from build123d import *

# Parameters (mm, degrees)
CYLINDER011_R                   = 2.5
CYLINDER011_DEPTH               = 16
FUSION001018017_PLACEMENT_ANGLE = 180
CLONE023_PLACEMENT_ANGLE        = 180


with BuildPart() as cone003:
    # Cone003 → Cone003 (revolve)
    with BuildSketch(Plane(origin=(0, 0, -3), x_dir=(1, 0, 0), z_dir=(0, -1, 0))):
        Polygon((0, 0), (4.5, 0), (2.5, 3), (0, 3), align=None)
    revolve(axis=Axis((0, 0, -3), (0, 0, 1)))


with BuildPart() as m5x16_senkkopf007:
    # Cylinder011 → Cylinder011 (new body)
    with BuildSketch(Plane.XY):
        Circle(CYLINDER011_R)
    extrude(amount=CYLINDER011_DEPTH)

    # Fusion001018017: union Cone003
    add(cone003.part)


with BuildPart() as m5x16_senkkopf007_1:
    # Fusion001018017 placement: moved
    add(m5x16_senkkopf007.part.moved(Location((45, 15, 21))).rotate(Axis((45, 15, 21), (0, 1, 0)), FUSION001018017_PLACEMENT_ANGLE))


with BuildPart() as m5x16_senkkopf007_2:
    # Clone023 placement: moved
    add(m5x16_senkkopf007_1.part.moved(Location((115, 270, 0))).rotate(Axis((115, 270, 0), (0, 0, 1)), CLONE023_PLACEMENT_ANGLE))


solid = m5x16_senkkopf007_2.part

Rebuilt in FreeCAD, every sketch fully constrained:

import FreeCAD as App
import Part
import Sketcher
from FreeCAD import Vector

doc = App.newDocument("Part")
body = doc.addObject("PartDesign::Body", "Body")

# Sketch on XZ plane
sketch1 = body.newObject("Sketcher::SketchObject", "Sketch")
sketch1.AttachmentSupport = (doc.getObject("XZ_Plane"), [""])
sketch1.MapMode = "FlatFace"
sketch1.addGeometry([
    Part.LineSegment(Vector(0, -3, 0), Vector(4.5, -3, 0)),
    Part.LineSegment(Vector(4.5, -3, 0), Vector(2.5, 0, 0)),
    Part.LineSegment(Vector(2.5, 0, 0), Vector(0, 0, 0)),
    Part.LineSegment(Vector(0, 0, 0), Vector(0, -3, 0)),
], False)
sketch1.addConstraint([
    Sketcher.Constraint("Coincident", 0, 2, 1, 1),
    Sketcher.Constraint("Coincident", 1, 2, 2, 1),
    Sketcher.Constraint("Coincident", 2, 2, 3, 1),
    Sketcher.Constraint("Coincident", 3, 2, 0, 1),
    Sketcher.Constraint("Horizontal", 0),
    Sketcher.Constraint("Horizontal", 2),
    Sketcher.Constraint("Vertical", 3),
    Sketcher.Constraint("Coincident", 2, 2, -1, 1),
    Sketcher.Constraint("DistanceY", 3, 2, 3, 1, 3.0),
    Sketcher.Constraint("DistanceX", 0, 1, 0, 2, 4.5),
    Sketcher.Constraint("DistanceX", 2, 2, 2, 1, 2.5),
])
revolution = body.newObject("PartDesign::Revolution", "Revolution")
revolution.Profile = sketch1
revolution.ReferenceAxis = (sketch1, ["V_Axis"])
revolution.Angle = 360
body2 = doc.addObject("PartDesign::Body", "Body001")

# Sketch on XY plane
sketch2 = body2.newObject("Sketcher::SketchObject", "Sketch001")
sketch2.AttachmentSupport = (doc.getObject("XY_Plane001"), [""])
sketch2.MapMode = "FlatFace"
sketch2.addGeometry(Part.Circle(Vector(0, 0, 0), Vector(0, 0, 1), 2.5), False)
sketch2.addConstraint([
    Sketcher.Constraint("Coincident", 0, 3, -1, 1),
    Sketcher.Constraint("Diameter", 0, 5.0),
])
pad1 = body2.newObject("PartDesign::Pad", "Pad")
pad1.Profile = sketch2
pad1.Length = 16
doc.recompute()

boolean = body2.newObject("PartDesign::Boolean", "Boolean")
boolean.Type = "Fuse"
boolean.addObjects([body])
body3 = doc.addObject("PartDesign::Body", "Body002")
doc.recompute()

body2.Placement = App.Placement(Vector(45, 15, 21), App.Rotation(Vector(0, 1, 0), 180))
boolean2 = body3.newObject("PartDesign::Boolean", "Boolean001")
boolean2.Type = "Fuse"
boolean2.addObjects([body2])
body4 = doc.addObject("PartDesign::Body", "Body003")
doc.recompute()

body3.Placement = App.Placement(Vector(115, 270, 0), App.Rotation(Vector(0, 0, 1), 180))
boolean3 = body4.newObject("PartDesign::Boolean", "Boolean002")
boolean3.Type = "Fuse"
boolean3.addObjects([body3])

doc.recompute()
